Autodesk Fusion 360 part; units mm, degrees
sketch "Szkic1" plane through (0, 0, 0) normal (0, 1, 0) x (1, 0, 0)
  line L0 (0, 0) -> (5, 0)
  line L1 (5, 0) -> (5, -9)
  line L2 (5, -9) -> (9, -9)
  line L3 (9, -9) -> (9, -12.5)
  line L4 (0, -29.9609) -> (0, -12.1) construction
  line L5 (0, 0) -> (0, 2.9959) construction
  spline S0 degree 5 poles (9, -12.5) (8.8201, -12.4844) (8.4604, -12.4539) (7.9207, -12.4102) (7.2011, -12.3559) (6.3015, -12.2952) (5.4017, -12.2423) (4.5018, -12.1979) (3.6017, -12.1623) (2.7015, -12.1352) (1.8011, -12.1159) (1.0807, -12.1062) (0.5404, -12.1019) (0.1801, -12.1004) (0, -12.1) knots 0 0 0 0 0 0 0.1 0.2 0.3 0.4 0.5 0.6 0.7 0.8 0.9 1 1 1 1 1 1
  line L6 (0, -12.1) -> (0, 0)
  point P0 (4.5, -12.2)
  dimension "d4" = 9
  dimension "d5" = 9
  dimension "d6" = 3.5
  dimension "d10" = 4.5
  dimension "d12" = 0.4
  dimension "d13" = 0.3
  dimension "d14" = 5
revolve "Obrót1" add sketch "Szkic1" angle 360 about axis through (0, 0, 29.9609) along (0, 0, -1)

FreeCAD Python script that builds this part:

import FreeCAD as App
import Part
import Sketcher

V = App.Vector

doc = App.newDocument("Part")
params = doc.addObject("Spreadsheet::Sheet", "Params")
for row, (alias, value) in enumerate([
    ("sketch1_width", "5 mm"),
    ("sketch1_height", "9 mm"),
    ("revolution_angle", "360 deg"),
], start=1):
    params.set(f"A{row}", alias)
    params.set(f"B{row}", "=" + value)
    params.setAlias(f"B{row}", alias)

body = doc.addObject("PartDesign::Body", "Body")

sketch1 = doc.addObject("Sketcher::SketchObject", "Sketch")
body.addObject(sketch1)
sketch1.AttachmentSupport = (doc.XZ_Plane, [""])
sketch1.MapMode = "FlatFace"
sketch1.addGeometry([
    Part.LineSegment(V(5, 0, 0), V(0, 0, 0)),
    Part.LineSegment(V(0, 0, 0), V(0, 12.1, 0)),
    Part.BSplineCurve([V(9, 12.5, 0), V(8.8201, 12.4844, 0), V(8.4604, 12.4539, 0), V(7.9207, 12.4102, 0), V(7.2011, 12.3559, 0), V(6.3015, 12.2952, 0), V(5.4017, 12.2423, 0), V(4.5018, 12.1979, 0), V(3.6017, 12.1623, 0), V(2.7015, 12.1352, 0), V(1.8011, 12.1159, 0), V(1.0807, 12.1062, 0), V(0.5404, 12.1019, 0), V(0.1801, 12.1004, 0), V(0, 12.1, 0)], [6, 1, 1, 1, 1, 1, 1, 1, 1, 1, 6], [0, 0.1, 0.2, 0.3, 0.4, 0.5, 0.6, 0.7, 0.8, 0.9, 1], False, 5, [1, 1, 1, 1, 1, 1, 1, 1, 1, 1, 1, 1, 1, 1, 1], False),
    Part.LineSegment(V(9, 12.5, 0), V(9, 9, 0)),
    Part.LineSegment(V(9, 9, 0), V(5, 9, 0)),
    Part.LineSegment(V(5, 9, 0), V(5, 0, 0)),
], False)
sketch1.addConstraint([
    Sketcher.Constraint("Block", 2),
    Sketcher.Constraint("Coincident", 0, 2, 1, 1),
    Sketcher.Constraint("Coincident", 1, 2, 2, 2),
    Sketcher.Constraint("Coincident", 2, 1, 3, 1),
    Sketcher.Constraint("Coincident", 3, 2, 4, 1),
    Sketcher.Constraint("Coincident", 4, 2, 5, 1),
    Sketcher.Constraint("Coincident", 5, 2, 0, 1),
    Sketcher.Constraint("Horizontal", 0),
    Sketcher.Constraint("Vertical", 1),
    Sketcher.Constraint("Vertical", 3),
    Sketcher.Constraint("Horizontal", 4),
    Sketcher.Constraint("Vertical", 5),
    Sketcher.Constraint("PointOnObject", 5, 2, -1),
    Sketcher.Constraint("DistanceX", 0, 2, 0, 1, 5.0),
    Sketcher.Constraint("DistanceY", 5, 2, 5, 1, 9.0),
])
sketch1.setExpression("Constraints[13]", "Params.sketch1_width")
sketch1.setExpression("Constraints[14]", "Params.sketch1_height")
revolution = doc.addObject("PartDesign::Revolution", "Revolution")
body.addObject(revolution)
revolution.Profile = sketch1
revolution.ReferenceAxis = (sketch1, ["V_Axis"])
revolution.setExpression("Angle", "Params.revolution_angle")

doc.recompute()
